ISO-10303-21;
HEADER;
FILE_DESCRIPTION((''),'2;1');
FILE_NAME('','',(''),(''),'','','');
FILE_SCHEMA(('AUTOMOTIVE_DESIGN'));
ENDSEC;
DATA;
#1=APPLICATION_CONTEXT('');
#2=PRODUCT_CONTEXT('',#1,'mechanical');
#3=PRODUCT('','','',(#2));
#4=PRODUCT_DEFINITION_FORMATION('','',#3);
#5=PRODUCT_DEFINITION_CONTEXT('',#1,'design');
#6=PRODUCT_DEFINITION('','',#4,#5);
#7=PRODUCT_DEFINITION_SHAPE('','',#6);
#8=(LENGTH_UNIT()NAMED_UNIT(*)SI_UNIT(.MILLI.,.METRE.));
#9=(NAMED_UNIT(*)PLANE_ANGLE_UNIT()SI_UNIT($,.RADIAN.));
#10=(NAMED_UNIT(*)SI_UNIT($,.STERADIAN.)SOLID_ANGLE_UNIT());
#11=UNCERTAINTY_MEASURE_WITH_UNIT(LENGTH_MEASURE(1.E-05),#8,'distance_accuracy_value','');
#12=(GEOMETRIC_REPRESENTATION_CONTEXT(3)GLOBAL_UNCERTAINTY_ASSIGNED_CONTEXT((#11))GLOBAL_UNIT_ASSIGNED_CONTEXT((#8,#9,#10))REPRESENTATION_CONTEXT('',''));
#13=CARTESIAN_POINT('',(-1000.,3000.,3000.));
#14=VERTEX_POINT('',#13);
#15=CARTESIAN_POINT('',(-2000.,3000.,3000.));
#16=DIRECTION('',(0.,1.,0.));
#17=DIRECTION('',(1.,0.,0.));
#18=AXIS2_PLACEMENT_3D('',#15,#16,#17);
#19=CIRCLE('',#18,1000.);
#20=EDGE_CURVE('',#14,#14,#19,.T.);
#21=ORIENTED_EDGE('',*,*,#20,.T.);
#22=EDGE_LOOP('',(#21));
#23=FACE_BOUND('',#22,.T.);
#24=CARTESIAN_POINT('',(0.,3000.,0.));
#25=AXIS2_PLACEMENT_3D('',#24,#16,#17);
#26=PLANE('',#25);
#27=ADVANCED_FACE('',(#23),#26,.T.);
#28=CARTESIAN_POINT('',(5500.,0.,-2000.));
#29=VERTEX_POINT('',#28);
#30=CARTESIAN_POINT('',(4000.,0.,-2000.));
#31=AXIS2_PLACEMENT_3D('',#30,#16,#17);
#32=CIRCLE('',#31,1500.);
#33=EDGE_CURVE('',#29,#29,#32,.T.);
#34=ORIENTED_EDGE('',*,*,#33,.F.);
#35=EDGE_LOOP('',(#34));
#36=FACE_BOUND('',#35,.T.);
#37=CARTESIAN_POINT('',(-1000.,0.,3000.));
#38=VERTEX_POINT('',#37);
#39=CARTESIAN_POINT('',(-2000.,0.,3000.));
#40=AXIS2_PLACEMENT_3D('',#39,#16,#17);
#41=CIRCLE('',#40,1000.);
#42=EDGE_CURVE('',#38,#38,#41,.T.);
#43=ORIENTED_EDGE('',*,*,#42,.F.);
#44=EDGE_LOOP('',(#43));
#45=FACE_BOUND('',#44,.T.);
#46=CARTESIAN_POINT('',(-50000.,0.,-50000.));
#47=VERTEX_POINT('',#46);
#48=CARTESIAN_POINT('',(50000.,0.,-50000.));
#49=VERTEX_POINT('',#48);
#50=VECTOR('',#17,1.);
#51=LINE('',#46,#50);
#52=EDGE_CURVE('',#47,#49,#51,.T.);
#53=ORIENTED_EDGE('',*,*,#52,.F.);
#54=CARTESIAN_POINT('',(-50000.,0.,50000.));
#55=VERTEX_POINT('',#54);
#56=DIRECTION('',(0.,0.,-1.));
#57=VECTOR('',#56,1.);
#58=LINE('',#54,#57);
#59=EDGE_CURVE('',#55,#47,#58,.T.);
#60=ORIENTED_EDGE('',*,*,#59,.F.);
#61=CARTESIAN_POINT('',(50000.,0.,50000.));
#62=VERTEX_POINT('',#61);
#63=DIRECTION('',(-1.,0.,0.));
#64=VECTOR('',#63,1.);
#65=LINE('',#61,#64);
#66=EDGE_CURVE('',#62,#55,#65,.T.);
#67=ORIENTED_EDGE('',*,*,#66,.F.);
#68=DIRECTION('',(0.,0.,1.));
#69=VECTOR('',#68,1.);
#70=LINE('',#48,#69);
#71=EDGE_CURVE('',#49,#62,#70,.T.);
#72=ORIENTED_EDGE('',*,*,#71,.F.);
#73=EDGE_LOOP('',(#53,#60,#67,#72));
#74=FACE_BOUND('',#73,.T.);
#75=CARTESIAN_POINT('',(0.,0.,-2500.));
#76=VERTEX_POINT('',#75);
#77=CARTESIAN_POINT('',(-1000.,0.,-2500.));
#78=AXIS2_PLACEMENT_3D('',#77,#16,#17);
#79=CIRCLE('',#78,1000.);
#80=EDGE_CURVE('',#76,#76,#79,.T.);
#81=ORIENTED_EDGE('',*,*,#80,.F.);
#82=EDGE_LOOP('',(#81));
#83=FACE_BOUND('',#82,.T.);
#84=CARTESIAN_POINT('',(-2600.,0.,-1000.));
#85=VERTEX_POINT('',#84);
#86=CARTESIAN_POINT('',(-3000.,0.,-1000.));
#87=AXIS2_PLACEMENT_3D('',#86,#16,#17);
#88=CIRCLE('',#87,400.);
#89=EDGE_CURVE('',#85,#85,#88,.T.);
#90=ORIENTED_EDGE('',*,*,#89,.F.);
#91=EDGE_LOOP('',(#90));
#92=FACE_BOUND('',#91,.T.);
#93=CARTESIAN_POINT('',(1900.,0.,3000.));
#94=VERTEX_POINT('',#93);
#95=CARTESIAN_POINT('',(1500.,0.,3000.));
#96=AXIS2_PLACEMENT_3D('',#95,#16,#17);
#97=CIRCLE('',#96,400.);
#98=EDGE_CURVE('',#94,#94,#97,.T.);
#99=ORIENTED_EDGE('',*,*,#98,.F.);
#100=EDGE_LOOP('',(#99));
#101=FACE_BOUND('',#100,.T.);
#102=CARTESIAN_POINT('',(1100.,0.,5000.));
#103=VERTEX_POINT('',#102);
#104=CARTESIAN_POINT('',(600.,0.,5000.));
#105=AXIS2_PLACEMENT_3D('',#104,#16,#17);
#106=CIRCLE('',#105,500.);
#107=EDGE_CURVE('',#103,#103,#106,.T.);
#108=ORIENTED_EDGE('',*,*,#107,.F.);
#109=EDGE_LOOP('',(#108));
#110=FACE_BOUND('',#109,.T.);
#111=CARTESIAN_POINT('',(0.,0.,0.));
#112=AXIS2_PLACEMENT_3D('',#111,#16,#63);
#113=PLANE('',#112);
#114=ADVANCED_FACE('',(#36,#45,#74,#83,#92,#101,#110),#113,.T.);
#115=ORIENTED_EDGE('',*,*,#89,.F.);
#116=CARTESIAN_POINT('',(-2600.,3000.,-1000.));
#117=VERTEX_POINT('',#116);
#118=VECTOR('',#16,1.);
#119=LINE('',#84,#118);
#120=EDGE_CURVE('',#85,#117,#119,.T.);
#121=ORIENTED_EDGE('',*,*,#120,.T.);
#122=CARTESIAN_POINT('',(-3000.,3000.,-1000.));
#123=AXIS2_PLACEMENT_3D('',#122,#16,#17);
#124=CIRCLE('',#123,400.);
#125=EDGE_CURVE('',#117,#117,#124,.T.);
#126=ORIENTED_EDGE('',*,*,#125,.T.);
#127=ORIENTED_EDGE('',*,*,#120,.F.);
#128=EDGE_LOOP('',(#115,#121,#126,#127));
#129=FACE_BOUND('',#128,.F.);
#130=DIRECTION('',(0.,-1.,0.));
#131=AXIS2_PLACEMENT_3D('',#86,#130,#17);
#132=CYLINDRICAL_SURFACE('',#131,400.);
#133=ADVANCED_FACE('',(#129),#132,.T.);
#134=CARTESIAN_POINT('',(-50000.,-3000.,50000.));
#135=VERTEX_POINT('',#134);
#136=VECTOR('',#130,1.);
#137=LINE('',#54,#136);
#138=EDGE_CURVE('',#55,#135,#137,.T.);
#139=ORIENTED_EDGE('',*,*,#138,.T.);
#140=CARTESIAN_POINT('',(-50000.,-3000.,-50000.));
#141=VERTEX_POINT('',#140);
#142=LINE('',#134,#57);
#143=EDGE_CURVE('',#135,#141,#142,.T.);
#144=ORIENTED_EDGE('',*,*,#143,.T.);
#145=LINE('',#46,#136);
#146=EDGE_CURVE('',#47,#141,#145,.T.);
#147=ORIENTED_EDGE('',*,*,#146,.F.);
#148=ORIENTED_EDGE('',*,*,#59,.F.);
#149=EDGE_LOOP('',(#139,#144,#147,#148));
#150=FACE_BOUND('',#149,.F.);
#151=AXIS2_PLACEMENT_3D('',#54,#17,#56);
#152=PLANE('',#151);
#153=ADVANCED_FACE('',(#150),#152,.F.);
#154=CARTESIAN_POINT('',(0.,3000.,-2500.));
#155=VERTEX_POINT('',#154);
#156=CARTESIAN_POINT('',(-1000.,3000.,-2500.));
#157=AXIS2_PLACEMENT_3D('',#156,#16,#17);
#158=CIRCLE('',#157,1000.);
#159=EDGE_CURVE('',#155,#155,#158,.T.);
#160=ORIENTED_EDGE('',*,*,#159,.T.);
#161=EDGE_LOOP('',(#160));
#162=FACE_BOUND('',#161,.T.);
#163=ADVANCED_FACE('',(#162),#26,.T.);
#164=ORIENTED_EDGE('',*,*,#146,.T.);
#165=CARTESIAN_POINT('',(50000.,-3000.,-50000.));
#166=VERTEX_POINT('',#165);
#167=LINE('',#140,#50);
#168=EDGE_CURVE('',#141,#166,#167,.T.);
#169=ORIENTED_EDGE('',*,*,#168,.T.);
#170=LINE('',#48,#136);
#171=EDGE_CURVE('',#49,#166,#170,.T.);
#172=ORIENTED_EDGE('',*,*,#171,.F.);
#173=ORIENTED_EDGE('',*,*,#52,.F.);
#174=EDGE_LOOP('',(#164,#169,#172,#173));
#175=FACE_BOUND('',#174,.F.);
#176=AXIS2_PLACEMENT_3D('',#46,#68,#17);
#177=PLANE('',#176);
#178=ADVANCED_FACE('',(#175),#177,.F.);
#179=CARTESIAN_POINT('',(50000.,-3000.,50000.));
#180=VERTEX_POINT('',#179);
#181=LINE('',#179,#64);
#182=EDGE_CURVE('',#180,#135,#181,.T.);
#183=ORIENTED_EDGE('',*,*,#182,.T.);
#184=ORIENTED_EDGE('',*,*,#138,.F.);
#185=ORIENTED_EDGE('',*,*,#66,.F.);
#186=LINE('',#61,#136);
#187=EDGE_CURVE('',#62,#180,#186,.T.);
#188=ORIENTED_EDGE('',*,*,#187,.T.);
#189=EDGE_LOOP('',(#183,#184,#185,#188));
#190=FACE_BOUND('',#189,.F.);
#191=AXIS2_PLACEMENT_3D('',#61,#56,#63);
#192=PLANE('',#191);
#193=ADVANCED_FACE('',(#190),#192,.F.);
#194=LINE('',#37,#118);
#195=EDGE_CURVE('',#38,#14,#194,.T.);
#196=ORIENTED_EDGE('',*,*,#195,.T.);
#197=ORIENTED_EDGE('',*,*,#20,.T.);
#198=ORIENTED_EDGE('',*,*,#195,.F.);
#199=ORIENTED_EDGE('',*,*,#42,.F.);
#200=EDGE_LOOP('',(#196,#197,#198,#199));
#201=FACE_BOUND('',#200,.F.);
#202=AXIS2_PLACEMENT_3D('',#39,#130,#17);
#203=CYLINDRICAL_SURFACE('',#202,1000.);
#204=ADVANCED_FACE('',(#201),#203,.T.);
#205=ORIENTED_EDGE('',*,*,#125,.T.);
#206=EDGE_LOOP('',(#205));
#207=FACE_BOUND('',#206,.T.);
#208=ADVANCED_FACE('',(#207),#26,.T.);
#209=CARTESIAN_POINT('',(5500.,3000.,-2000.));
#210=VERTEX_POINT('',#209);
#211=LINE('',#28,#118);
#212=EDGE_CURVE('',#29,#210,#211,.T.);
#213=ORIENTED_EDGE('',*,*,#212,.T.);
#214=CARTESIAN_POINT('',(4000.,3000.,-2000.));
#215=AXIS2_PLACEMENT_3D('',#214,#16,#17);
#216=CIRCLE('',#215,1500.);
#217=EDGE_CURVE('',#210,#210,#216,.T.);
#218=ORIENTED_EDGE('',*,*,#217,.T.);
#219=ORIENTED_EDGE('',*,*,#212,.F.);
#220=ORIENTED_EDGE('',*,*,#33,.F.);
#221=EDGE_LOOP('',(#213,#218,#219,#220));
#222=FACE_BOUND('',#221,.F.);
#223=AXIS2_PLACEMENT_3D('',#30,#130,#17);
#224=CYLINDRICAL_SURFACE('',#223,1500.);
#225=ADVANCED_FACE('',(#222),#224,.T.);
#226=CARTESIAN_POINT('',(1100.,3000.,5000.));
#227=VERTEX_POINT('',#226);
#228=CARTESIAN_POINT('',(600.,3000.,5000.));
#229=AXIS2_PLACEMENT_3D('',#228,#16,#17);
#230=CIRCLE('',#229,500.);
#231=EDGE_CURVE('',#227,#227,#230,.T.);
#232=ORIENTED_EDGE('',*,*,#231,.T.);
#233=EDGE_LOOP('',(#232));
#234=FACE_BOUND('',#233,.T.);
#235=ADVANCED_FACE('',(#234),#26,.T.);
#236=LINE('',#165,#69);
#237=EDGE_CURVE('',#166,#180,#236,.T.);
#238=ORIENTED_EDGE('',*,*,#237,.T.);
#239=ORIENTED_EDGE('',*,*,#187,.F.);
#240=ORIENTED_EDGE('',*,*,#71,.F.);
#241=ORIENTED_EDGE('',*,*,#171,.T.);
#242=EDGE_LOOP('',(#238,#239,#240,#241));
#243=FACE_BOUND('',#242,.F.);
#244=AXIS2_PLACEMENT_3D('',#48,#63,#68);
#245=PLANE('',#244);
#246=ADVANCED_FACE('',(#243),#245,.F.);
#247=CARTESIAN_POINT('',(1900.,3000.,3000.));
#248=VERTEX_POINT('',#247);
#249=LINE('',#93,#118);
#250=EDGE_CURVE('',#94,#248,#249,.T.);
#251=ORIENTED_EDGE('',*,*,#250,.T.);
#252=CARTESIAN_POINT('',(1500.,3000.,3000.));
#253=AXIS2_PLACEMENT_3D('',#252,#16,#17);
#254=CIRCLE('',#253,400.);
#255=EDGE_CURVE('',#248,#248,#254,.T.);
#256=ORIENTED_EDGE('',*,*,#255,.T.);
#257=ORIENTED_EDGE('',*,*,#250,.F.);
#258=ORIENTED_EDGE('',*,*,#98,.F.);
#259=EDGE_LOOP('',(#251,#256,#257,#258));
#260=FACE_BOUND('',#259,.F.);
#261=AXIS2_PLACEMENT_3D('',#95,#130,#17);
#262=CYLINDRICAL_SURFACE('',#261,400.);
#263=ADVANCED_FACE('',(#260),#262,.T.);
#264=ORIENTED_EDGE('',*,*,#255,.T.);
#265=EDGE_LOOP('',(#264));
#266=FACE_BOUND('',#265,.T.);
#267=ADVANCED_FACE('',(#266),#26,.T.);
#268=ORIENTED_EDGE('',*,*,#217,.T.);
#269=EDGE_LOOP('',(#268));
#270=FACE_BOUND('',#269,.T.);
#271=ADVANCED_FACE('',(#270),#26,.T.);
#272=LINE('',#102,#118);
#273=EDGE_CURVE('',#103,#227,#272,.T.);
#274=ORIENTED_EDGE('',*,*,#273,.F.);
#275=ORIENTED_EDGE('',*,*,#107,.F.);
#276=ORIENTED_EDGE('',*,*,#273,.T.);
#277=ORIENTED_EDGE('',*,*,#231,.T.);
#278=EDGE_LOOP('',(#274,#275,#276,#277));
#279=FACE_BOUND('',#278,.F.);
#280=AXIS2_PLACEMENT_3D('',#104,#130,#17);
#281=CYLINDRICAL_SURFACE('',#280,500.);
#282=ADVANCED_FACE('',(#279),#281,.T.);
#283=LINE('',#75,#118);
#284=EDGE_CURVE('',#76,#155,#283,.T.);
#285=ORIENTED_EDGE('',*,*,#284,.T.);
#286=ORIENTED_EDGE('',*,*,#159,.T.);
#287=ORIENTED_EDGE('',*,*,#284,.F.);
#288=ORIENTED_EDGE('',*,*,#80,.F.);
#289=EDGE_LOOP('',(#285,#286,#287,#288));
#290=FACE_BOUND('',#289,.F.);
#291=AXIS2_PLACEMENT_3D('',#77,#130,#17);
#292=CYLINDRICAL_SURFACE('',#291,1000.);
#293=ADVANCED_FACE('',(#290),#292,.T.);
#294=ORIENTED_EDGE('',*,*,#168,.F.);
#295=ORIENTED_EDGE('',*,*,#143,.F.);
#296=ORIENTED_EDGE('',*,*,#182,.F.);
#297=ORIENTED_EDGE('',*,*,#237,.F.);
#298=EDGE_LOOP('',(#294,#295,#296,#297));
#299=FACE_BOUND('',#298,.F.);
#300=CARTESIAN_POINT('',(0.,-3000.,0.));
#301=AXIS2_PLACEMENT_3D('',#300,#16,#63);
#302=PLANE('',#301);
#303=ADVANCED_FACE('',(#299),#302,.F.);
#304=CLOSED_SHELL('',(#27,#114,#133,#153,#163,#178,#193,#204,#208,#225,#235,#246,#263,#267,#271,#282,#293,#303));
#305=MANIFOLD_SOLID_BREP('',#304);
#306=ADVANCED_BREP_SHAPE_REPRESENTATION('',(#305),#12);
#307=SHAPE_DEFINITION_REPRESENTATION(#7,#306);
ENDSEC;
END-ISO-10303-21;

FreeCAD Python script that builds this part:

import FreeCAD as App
import Part
import Sketcher

V = App.Vector
Q = App.Units.Quantity

doc = App.newDocument("Part")
body = doc.addObject("PartDesign::Body", "Body")

# Sketch on XZ plane
sketch1 = body.newObject("Sketcher::SketchObject", "Sketch")
sketch1.AttachmentSupport = (doc.getObject("XZ_Plane"), [""])
sketch1.MapMode = "FlatFace"
sketch1.addGeometry(Part.LineSegment(V(-50000, 50000, 0), V(50000, 50000, 0)), False)
sketch1.addGeometry(Part.LineSegment(V(50000, 50000, 0), V(50000, -50000, 0)), False)
sketch1.addGeometry(Part.LineSegment(V(50000, -50000, 0), V(-50000, -50000, 0)), False)
sketch1.addGeometry(Part.LineSegment(V(-50000, -50000, 0), V(-50000, 50000, 0)), False)
sketch1.addConstraint(Sketcher.Constraint("Coincident", 0, 2, 1, 1))
sketch1.addConstraint(Sketcher.Constraint("Coincident", 1, 2, 2, 1))
sketch1.addConstraint(Sketcher.Constraint("Coincident", 2, 2, 3, 1))
sketch1.addConstraint(Sketcher.Constraint("Coincident", 3, 2, 0, 1))
sketch1.addConstraint(Sketcher.Constraint("Horizontal", 0))
sketch1.addConstraint(Sketcher.Constraint("Vertical", 1))
sketch1.addConstraint(Sketcher.Constraint("Horizontal", 2))
sketch1.addConstraint(Sketcher.Constraint("Vertical", 3))
sketch1.addConstraint(Sketcher.Constraint("Symmetric", 0, 2, 2, 2, -1, 1))
sketch1.addConstraint(Sketcher.Constraint("Equal", 2, 1))
sketch1.addConstraint(Sketcher.Constraint("DistanceX", 0, 1, 0, 2, Q("100000 mm")))
pad1 = body.newObject("PartDesign::Pad", "Pad")
pad1.Profile = sketch1
pad1.Length = 3000

# Sketch on XZ plane
sketch2 = body.newObject("Sketcher::SketchObject", "Sketch001")
sketch2.AttachmentSupport = (doc.getObject("XZ_Plane"), [""])
sketch2.MapMode = "FlatFace"
sketch2.addGeometry(Part.Circle(V(-2000, 3000, 0), V(0, 0, 1), 1000), False)
sketch2.addGeometry(Part.Circle(V(1500, 3000, 0), V(0, 0, 1), 400), False)
sketch2.addGeometry(Part.Circle(V(4000, -2000, 0), V(0, 0, 1), 1500), False)
sketch2.addGeometry(Part.Circle(V(-3000, -1000, 0), V(0, 0, 1), 400), False)
sketch2.addGeometry(Part.Circle(V(-1000, -2500, 0), V(0, 0, 1), 1000), False)
sketch2.addGeometry(Part.Circle(V(600, 5000, 0), V(0, 0, 1), 500), False)
sketch2.addConstraint(Sketcher.Constraint("Equal", 1, 3))
sketch2.addConstraint(Sketcher.Constraint("Equal", 0, 4))
sketch2.addConstraint(Sketcher.Constraint("Horizontal", 0, 3, 1, 3))
sketch2.addConstraint(Sketcher.Constraint("Diameter", 0, Q("2000 mm")))
sketch2.addConstraint(Sketcher.Constraint("Diameter", 1, Q("800 mm")))
sketch2.addConstraint(Sketcher.Constraint("Diameter", 2, Q("3000 mm")))
sketch2.addConstraint(Sketcher.Constraint("Diameter", 5, Q("1000 mm")))
sketch2.addConstraint(Sketcher.Constraint("DistanceX", 0, 3, -1, 1, Q("2000 mm")))
sketch2.addConstraint(Sketcher.Constraint("DistanceY", -1, 1, 0, 3, Q("3000 mm")))
sketch2.addConstraint(Sketcher.Constraint("DistanceX", -1, 1, 1, 3, Q("1500 mm")))
sketch2.addConstraint(Sketcher.Constraint("DistanceX", -1, 1, 2, 3, Q("4000 mm")))
sketch2.addConstraint(Sketcher.Constraint("DistanceY", 2, 3, -1, 1, Q("2000 mm")))
sketch2.addConstraint(Sketcher.Constraint("DistanceX", 3, 3, -1, 1, Q("3000 mm")))
sketch2.addConstraint(Sketcher.Constraint("DistanceY", 3, 3, -1, 1, Q("1000 mm")))
sketch2.addConstraint(Sketcher.Constraint("DistanceX", 4, 3, -1, 1, Q("1000 mm")))
sketch2.addConstraint(Sketcher.Constraint("DistanceY", 4, 3, -1, 1, Q("2500 mm")))
sketch2.addConstraint(Sketcher.Constraint("DistanceX", -1, 1, 5, 3, Q("600 mm")))
sketch2.addConstraint(Sketcher.Constraint("DistanceY", -1, 1, 5, 3, Q("5000 mm")))
pad2 = body.newObject("PartDesign::Pad", "Pad001")
pad2.Profile = sketch2
pad2.Length = 3000
pad2.Reversed = True

doc.recompute()
